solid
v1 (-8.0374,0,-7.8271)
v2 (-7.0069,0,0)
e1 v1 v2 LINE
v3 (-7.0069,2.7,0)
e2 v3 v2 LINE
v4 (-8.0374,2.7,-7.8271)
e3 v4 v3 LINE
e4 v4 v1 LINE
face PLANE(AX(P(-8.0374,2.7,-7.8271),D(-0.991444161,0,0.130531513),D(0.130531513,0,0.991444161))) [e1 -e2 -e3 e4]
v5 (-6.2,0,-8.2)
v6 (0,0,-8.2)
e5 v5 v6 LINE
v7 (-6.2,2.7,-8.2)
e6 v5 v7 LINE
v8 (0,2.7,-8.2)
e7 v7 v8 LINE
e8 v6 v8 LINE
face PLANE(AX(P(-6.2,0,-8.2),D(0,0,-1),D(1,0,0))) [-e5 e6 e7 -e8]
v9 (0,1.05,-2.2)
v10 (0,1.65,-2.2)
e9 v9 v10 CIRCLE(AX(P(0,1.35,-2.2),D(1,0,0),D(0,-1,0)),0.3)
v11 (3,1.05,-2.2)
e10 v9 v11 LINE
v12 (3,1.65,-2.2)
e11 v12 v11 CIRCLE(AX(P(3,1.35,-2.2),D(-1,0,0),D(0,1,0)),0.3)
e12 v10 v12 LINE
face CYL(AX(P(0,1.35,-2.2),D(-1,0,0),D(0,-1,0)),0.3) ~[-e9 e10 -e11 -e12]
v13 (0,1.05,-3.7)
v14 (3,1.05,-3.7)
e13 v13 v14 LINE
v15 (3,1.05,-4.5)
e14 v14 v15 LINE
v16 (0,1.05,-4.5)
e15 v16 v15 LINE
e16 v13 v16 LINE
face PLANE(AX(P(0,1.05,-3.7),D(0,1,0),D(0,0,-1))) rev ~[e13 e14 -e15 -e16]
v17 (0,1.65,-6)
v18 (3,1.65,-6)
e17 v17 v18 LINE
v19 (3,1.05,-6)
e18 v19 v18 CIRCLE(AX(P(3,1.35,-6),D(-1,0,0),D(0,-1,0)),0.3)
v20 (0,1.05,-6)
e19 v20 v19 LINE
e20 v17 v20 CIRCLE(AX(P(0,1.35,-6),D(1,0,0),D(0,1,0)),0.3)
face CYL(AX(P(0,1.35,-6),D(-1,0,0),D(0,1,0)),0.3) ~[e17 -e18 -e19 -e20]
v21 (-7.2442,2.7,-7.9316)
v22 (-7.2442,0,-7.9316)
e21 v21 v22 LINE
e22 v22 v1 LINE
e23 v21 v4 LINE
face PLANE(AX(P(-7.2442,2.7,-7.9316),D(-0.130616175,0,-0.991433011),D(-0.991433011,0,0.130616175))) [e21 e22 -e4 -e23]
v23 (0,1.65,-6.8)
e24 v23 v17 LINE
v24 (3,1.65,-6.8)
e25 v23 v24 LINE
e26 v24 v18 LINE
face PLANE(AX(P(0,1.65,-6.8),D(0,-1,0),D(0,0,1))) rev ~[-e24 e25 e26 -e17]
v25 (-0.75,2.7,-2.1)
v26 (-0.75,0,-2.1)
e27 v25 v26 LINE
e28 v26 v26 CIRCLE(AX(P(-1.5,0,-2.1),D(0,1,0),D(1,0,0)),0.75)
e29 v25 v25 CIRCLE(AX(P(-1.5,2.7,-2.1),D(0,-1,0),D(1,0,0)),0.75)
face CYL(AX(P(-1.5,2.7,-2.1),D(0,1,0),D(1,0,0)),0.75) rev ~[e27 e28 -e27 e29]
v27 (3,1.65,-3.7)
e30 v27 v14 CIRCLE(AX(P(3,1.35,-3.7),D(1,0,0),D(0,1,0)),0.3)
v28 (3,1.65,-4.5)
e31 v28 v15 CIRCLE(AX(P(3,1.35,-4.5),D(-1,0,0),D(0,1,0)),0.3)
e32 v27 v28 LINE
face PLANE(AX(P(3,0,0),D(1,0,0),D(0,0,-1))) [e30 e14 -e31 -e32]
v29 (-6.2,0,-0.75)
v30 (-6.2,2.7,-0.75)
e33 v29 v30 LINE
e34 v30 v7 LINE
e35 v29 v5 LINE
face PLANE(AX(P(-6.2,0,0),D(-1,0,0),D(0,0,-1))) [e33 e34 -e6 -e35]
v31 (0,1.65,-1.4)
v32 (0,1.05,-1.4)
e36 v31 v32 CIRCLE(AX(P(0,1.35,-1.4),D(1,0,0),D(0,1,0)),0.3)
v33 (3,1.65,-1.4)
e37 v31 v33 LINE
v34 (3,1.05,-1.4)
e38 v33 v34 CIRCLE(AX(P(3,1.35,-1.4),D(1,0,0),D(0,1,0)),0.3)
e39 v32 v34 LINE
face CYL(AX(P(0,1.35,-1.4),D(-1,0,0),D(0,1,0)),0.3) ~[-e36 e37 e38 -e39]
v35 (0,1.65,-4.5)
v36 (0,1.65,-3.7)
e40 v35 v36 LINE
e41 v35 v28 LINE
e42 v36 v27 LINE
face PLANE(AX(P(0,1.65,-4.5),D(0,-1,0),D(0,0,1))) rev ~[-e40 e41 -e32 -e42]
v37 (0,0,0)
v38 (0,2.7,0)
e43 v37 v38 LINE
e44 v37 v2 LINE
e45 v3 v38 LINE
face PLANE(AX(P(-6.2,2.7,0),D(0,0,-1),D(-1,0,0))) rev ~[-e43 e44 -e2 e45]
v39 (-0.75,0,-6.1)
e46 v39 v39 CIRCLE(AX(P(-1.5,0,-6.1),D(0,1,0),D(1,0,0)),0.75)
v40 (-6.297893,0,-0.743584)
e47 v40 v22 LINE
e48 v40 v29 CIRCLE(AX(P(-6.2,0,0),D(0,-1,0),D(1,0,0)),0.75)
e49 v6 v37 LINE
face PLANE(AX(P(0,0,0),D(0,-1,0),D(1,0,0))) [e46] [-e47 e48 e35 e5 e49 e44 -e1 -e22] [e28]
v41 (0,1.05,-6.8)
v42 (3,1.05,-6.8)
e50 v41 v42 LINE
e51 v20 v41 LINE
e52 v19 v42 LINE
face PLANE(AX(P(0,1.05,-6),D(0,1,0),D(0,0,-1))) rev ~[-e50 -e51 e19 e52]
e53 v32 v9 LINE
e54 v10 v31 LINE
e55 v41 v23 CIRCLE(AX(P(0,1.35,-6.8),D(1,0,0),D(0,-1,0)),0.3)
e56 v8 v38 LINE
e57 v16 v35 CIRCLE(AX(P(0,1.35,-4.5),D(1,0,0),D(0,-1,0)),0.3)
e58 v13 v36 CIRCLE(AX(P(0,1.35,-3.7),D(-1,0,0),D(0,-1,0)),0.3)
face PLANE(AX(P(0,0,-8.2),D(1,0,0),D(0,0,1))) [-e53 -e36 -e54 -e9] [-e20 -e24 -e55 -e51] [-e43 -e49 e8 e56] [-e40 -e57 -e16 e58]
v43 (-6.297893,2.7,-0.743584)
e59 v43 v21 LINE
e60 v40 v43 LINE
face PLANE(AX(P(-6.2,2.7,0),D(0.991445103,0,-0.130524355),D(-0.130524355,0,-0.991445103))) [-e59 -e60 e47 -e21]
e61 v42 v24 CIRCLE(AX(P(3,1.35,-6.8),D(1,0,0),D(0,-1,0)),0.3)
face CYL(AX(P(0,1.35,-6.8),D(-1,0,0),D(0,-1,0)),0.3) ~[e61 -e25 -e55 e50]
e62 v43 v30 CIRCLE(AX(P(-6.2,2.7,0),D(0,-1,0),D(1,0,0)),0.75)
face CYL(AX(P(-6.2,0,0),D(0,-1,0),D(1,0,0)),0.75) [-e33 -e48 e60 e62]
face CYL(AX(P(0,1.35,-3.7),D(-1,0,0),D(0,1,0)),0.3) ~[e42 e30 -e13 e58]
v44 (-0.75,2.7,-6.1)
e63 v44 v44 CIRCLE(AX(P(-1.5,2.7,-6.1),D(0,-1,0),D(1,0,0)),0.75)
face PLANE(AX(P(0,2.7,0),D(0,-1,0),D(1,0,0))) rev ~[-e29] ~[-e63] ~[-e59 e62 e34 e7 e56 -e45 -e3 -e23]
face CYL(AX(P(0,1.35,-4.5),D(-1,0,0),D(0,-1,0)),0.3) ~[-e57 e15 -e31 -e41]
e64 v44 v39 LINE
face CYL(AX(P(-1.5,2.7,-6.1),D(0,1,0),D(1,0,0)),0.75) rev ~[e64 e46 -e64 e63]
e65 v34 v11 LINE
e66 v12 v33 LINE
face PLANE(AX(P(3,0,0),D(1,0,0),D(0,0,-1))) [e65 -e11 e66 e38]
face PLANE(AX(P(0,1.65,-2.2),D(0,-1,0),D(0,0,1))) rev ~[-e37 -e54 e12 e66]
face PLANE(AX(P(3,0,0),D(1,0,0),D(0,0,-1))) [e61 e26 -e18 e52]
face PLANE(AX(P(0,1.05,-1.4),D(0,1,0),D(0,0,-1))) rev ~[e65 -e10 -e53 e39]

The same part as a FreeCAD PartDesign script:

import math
import FreeCAD as App
import Part
import Sketcher
Q = App.Units.Quantity


def add_polygon(sketch, points):
    """Adds a closed chain of lines whose ends are joined by coincident constraints."""
    first, n = sketch.GeometryCount, len(points)
    for a, b in zip(points, points[1:] + points[:1]):
        sketch.addGeometry(Part.LineSegment(App.Vector(*a, 0), App.Vector(*b, 0)), False)
    for i in range(n):
        sketch.addConstraint(Sketcher.Constraint("Coincident", first + i, 2, first + (i + 1) % n, 1))

doc = App.newDocument("Part")
body = doc.addObject("PartDesign::Body", "Body")
body.AllowCompound = True

# Sketch on XZ plane
sketch1 = body.newObject("Sketcher::SketchObject", "Sketch")
sketch1.AttachmentSupport = (doc.getObject("XZ_Plane"), [""])
sketch1.MapMode = "FlatFace"
add_polygon(sketch1, [(-6, 0), (0, 0), (0, -8), (-6, -8)])  # lines 0-3
sketch1.addConstraint(Sketcher.Constraint("Horizontal", 0))
sketch1.addConstraint(Sketcher.Constraint("Vertical", 1))
sketch1.addConstraint(Sketcher.Constraint("Horizontal", 2))
sketch1.addConstraint(Sketcher.Constraint("Vertical", 3))
sketch1.addConstraint(Sketcher.Constraint("Coincident", 0, 2, -1, 1))
sketch1.addConstraint(Sketcher.Constraint("DistanceX", 0, 1, 0, 2, Q("6.2 mm")))
sketch1.addConstraint(Sketcher.Constraint("DistanceY", 1, 2, 1, 1, Q("8.2 mm")))
pad1 = body.newObject("PartDesign::Pad", "Pad")
pad1.Profile = sketch1
pad1.Length = 2.7
pad1.Reversed = True

# Sketch on XZ plane
sketch2 = body.newObject("Sketcher::SketchObject", "Sketch001")
sketch2.AttachmentSupport = (doc.getObject("XZ_Plane"), [""])
sketch2.MapMode = "FlatFace"
sketch2.AttachmentOffset = App.Placement(App.Vector(0, 0, -2.7), App.Rotation())
add_polygon(sketch2, [(-7, 0), (-6.2, 0), (-7.2, -7.9), (-8, -7.8)])  # lines 0-3
sketch2.addConstraint(Sketcher.Constraint("Horizontal", 0))
sketch2.addConstraint(Sketcher.Constraint("PointOnObject", 0, 2, -1))
sketch2.addConstraint(Sketcher.Constraint("Perpendicular", 1, 2))
sketch2.addConstraint(Sketcher.Constraint("Perpendicular", 2, 3))
sketch2.addConstraint(Sketcher.Constraint("Distance", 1, Q("8 mm")))
sketch2.addConstraint(Sketcher.Constraint("Distance", 2, Q("0.8 mm")))
sketch2.addConstraint(Sketcher.Constraint("Angle", 1, Q("-97.5 deg")))
sketch2.addConstraint(Sketcher.Constraint("DistanceX", 0, 2, -1, 1, Q("6.2 mm")))
pad2 = body.newObject("PartDesign::Pad", "Pad001")
pad2.Profile = sketch2
pad2.Length = 2.7

# Sketch on XZ plane
sketch3 = body.newObject("Sketcher::SketchObject", "Sketch002")
sketch3.AttachmentSupport = (doc.getObject("XZ_Plane"), [""])
sketch3.MapMode = "FlatFace"
sketch3.addGeometry(Part.ArcOfCircle(Part.Circle(App.Vector(-6.2, 0, 0), App.Vector(0, 0, 1), 0.75), math.radians(-97.5), math.radians(-90)), False)
sketch3.addGeometry(Part.LineSegment(App.Vector(-6.2, -0.75, 0), App.Vector(-6.2, 0, 0)), False)
sketch3.addGeometry(Part.LineSegment(App.Vector(-6.2, 0, 0), App.Vector(-6.3, -0.74, 0)), False)
sketch3.addConstraint(Sketcher.Constraint("Coincident", 0, 2, 1, 1))
sketch3.addConstraint(Sketcher.Constraint("Coincident", 1, 2, 2, 1))
sketch3.addConstraint(Sketcher.Constraint("Coincident", 2, 2, 0, 1))
sketch3.addConstraint(Sketcher.Constraint("Vertical", 1))
sketch3.addConstraint(Sketcher.Constraint("Coincident", 1, 2, 0, 3))
sketch3.addConstraint(Sketcher.Constraint("PointOnObject", 0, 3, -1))
sketch3.addConstraint(Sketcher.Constraint("Radius", 0, Q("0.75 mm")))
sketch3.addConstraint(Sketcher.Constraint("Angle", 2, Q("-97.5 deg")))
sketch3.addConstraint(Sketcher.Constraint("DistanceX", 0, 3, -1, 1, Q("6.2 mm")))
pad3 = body.newObject("PartDesign::Pad", "Pad002")
pad3.Profile = sketch3
pad3.Length = 2.7
pad3.Reversed = True

# Sketch on XZ plane
sketch4 = body.newObject("Sketcher::SketchObject", "Sketch003")
sketch4.AttachmentSupport = (doc.getObject("XZ_Plane"), [""])
sketch4.MapMode = "FlatFace"
sketch4.AttachmentOffset = App.Placement(App.Vector(0, 0, -2.7), App.Rotation())
sketch4.addGeometry(Part.Circle(App.Vector(-1.5, -2.1, 0), App.Vector(0, 0, 1), 0.8), False)
sketch4.addGeometry(Part.Circle(App.Vector(-1.5, -6.1, 0), App.Vector(0, 0, 1), 0.8), False)
sketch4.addConstraint(Sketcher.Constraint("Equal", 0, 1))
sketch4.addConstraint(Sketcher.Constraint("Vertical", 0, 3, 1, 3))
sketch4.addConstraint(Sketcher.Constraint("Diameter", 0, Q("1.5 mm")))
sketch4.addConstraint(Sketcher.Constraint("DistanceX", 0, 3, -1, 1, Q("1.5 mm")))
sketch4.addConstraint(Sketcher.Constraint("DistanceY", 1, 3, 0, 3, Q("4 mm")))
sketch4.addConstraint(Sketcher.Constraint("DistanceY", 0, 3, -1, 1, Q("2.1 mm")))
pocket1 = body.newObject("PartDesign::Pocket", "Pocket")
pocket1.Profile = sketch4
pocket1.Length = 2.7
pocket1.Reversed = True

# Sketch on YZ plane
sketch5 = body.newObject("Sketcher::SketchObject", "Sketch004")
sketch5.AttachmentSupport = (doc.getObject("YZ_Plane"), [""])
sketch5.MapMode = "FlatFace"
sketch5.addGeometry(Part.ArcOfCircle(Part.Circle(App.Vector(1.35, -6, 0), App.Vector(0, 0, 1), 0.3), math.radians(0), math.radians(180)), False)
sketch5.addGeometry(Part.LineSegment(App.Vector(1.05, -6, 0), App.Vector(1.05, -6.8, 0)), False)
sketch5.addGeometry(Part.ArcOfCircle(Part.Circle(App.Vector(1.35, -6.8, 0), App.Vector(0, 0, 1), 0.3), math.radians(180), math.radians(360)), False)
sketch5.addGeometry(Part.LineSegment(App.Vector(1.65, -6.8, 0), App.Vector(1.65, -6, 0)), False)
sketch5.addGeometry(Part.ArcOfCircle(Part.Circle(App.Vector(1.35, -2.2, 0), App.Vector(0, 0, 1), 0.3), math.radians(180), math.radians(360)), False)
sketch5.addGeometry(Part.LineSegment(App.Vector(1.65, -2.2, 0), App.Vector(1.65, -1.4, 0)), False)
sketch5.addGeometry(Part.ArcOfCircle(Part.Circle(App.Vector(1.35, -1.4, 0), App.Vector(0, 0, 1), 0.3), math.radians(0), math.radians(180)), False)
sketch5.addGeometry(Part.LineSegment(App.Vector(1.05, -1.4, 0), App.Vector(1.05, -2.2, 0)), False)
sketch5.addGeometry(Part.LineSegment(App.Vector(1.65, -4.5, 0), App.Vector(1.65, -3.7, 0)), False)
sketch5.addGeometry(Part.ArcOfCircle(Part.Circle(App.Vector(1.35, -3.7, 0), App.Vector(0, 0, 1), 0.3), math.radians(0), math.radians(180)), False)
sketch5.addGeometry(Part.LineSegment(App.Vector(1.05, -3.7, 0), App.Vector(1.05, -4.5, 0)), False)
sketch5.addGeometry(Part.ArcOfCircle(Part.Circle(App.Vector(1.35, -4.5, 0), App.Vector(0, 0, 1), 0.3), math.radians(180), math.radians(360)), False)
sketch5.addConstraint(Sketcher.Constraint("Tangent", 0, 2, 1, 1))
sketch5.addConstraint(Sketcher.Constraint("Tangent", 1, 2, 2, 1))
sketch5.addConstraint(Sketcher.Constraint("Tangent", 2, 2, 3, 1))
sketch5.addConstraint(Sketcher.Constraint("Tangent", 3, 2, 0, 1))
sketch5.addConstraint(Sketcher.Constraint("Tangent", 4, 2, 5, 1))
sketch5.addConstraint(Sketcher.Constraint("Tangent", 5, 2, 6, 1))
sketch5.addConstraint(Sketcher.Constraint("Tangent", 6, 2, 7, 1))
sketch5.addConstraint(Sketcher.Constraint("Tangent", 7, 2, 4, 1))
sketch5.addConstraint(Sketcher.Constraint("Tangent", 8, 2, 9, 1))
sketch5.addConstraint(Sketcher.Constraint("Tangent", 9, 2, 10, 1))
sketch5.addConstraint(Sketcher.Constraint("Tangent", 10, 2, 11, 1))
sketch5.addConstraint(Sketcher.Constraint("Tangent", 11, 2, 8, 1))
sketch5.addConstraint(Sketcher.Constraint("Vertical", 1))
sketch5.addConstraint(Sketcher.Constraint("Vertical", 3))
sketch5.addConstraint(Sketcher.Constraint("Vertical", 5))
sketch5.addConstraint(Sketcher.Constraint("Vertical", 7))
sketch5.addConstraint(Sketcher.Constraint("Vertical", 8))
sketch5.addConstraint(Sketcher.Constraint("Vertical", 10))
sketch5.addConstraint(Sketcher.Constraint("Equal", 2, 4))
sketch5.addConstraint(Sketcher.Constraint("Equal", 6, 9))
sketch5.addConstraint(Sketcher.Constraint("Vertical", 2, 3, 4, 3))
sketch5.addConstraint(Sketcher.Constraint("Vertical", 6, 3, 9, 3))
sketch5.addConstraint(Sketcher.Constraint("Equal", 3, 5))
sketch5.addConstraint(Sketcher.Constraint("Equal", 7, 8))
sketch5.addConstraint(Sketcher.Constraint("Radius", 0, Q("0.3 mm")))
sketch5.addConstraint(Sketcher.Constraint("DistanceY", 0, 3, 9, 3, Q("2.3 mm")))
sketch5.addConstraint(Sketcher.Constraint("DistanceY", 9, 3, 6, 3, Q("2.3 mm")))
sketch5.addConstraint(Sketcher.Constraint("DistanceX", -1, 1, 0, 3, Q("1.35 mm")))
sketch5.addConstraint(Sketcher.Constraint("DistanceY", 1, 2, 1, 1, Q("0.8 mm")))
sketch5.addConstraint(Sketcher.Constraint("DistanceY", 0, 3, -1, 1, Q("6 mm")))
pad4 = body.newObject("PartDesign::Pad", "Pad003")
pad4.Profile = sketch5
pad4.Length = 3

doc.recompute()
